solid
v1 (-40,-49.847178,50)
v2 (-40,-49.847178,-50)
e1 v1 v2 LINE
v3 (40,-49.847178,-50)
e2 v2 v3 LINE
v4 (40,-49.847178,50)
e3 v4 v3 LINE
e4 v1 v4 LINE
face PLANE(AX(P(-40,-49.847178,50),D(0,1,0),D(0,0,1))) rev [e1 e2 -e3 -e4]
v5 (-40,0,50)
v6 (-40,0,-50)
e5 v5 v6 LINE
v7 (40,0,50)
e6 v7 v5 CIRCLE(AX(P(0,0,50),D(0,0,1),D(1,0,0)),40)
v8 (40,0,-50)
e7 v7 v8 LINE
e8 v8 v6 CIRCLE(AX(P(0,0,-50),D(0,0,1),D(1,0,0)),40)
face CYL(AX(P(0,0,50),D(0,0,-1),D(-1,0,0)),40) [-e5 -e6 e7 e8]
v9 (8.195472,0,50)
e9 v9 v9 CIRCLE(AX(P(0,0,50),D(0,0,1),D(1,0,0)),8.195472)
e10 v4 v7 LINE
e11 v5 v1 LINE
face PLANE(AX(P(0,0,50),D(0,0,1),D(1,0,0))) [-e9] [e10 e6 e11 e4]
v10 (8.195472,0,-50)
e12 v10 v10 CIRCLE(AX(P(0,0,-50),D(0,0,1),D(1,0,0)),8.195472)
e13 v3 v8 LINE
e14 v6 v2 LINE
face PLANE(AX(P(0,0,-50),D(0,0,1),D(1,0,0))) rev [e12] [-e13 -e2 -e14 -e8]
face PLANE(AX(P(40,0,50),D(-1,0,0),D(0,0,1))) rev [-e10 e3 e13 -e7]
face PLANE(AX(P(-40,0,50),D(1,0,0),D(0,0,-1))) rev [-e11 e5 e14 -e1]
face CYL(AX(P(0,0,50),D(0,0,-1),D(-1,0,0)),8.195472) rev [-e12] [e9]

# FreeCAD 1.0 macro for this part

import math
import FreeCAD as App
import Part
import Sketcher

V = App.Vector

doc = App.newDocument("Part")
body = doc.addObject("PartDesign::Body", "Body")

# Sketch on XY plane
sketch1 = body.newObject("Sketcher::SketchObject", "Sketch")
sketch1.AttachmentSupport = (doc.getObject("XY_Plane"), [""])
sketch1.MapMode = "FlatFace"
sketch1.addGeometry(Part.LineSegment(V(-40, 0, 0), V(-40, -49.847178, 0)), False)
sketch1.addGeometry(Part.LineSegment(V(-40, -49.847178, 0), V(40, -49.847178, 0)), False)
sketch1.addGeometry(Part.LineSegment(V(40, -49.847178, 0), V(40, 0, 0)), False)
sketch1.addGeometry(Part.ArcOfCircle(Part.Circle(V(0, 0, 0), V(0, 0, 1), 40), math.radians(0), math.radians(180)), False)
sketch1.addGeometry(Part.Circle(V(0, 0, 0), V(0, 0, 1), 8.195472), False)
sketch1.addConstraint(Sketcher.Constraint("Coincident", 0, 2, 1, 1))
sketch1.addConstraint(Sketcher.Constraint("Coincident", 1, 2, 2, 1))
sketch1.addConstraint(Sketcher.Constraint("Tangent", 2, 2, 3, 1))
sketch1.addConstraint(Sketcher.Constraint("Tangent", 3, 2, 0, 1))
sketch1.addConstraint(Sketcher.Constraint("Vertical", 0))
sketch1.addConstraint(Sketcher.Constraint("Horizontal", 1))
sketch1.addConstraint(Sketcher.Constraint("Vertical", 2))
sketch1.addConstraint(Sketcher.Constraint("Coincident", 3, 3, -1, 1))
sketch1.addConstraint(Sketcher.Constraint("Coincident", 4, 3, -1, 1))
sketch1.addConstraint(Sketcher.Constraint("Radius", 3, 40.0))
sketch1.addConstraint(Sketcher.Constraint("Diameter", 4, 16.390943))
sketch1.addConstraint(Sketcher.Constraint("DistanceY", 0, 2, 0, 1, 49.847178))
pad1 = body.newObject("PartDesign::Pad", "Pad")
pad1.Profile = sketch1
pad1.Length = 100
pad1.Midplane = True

doc.recompute()
